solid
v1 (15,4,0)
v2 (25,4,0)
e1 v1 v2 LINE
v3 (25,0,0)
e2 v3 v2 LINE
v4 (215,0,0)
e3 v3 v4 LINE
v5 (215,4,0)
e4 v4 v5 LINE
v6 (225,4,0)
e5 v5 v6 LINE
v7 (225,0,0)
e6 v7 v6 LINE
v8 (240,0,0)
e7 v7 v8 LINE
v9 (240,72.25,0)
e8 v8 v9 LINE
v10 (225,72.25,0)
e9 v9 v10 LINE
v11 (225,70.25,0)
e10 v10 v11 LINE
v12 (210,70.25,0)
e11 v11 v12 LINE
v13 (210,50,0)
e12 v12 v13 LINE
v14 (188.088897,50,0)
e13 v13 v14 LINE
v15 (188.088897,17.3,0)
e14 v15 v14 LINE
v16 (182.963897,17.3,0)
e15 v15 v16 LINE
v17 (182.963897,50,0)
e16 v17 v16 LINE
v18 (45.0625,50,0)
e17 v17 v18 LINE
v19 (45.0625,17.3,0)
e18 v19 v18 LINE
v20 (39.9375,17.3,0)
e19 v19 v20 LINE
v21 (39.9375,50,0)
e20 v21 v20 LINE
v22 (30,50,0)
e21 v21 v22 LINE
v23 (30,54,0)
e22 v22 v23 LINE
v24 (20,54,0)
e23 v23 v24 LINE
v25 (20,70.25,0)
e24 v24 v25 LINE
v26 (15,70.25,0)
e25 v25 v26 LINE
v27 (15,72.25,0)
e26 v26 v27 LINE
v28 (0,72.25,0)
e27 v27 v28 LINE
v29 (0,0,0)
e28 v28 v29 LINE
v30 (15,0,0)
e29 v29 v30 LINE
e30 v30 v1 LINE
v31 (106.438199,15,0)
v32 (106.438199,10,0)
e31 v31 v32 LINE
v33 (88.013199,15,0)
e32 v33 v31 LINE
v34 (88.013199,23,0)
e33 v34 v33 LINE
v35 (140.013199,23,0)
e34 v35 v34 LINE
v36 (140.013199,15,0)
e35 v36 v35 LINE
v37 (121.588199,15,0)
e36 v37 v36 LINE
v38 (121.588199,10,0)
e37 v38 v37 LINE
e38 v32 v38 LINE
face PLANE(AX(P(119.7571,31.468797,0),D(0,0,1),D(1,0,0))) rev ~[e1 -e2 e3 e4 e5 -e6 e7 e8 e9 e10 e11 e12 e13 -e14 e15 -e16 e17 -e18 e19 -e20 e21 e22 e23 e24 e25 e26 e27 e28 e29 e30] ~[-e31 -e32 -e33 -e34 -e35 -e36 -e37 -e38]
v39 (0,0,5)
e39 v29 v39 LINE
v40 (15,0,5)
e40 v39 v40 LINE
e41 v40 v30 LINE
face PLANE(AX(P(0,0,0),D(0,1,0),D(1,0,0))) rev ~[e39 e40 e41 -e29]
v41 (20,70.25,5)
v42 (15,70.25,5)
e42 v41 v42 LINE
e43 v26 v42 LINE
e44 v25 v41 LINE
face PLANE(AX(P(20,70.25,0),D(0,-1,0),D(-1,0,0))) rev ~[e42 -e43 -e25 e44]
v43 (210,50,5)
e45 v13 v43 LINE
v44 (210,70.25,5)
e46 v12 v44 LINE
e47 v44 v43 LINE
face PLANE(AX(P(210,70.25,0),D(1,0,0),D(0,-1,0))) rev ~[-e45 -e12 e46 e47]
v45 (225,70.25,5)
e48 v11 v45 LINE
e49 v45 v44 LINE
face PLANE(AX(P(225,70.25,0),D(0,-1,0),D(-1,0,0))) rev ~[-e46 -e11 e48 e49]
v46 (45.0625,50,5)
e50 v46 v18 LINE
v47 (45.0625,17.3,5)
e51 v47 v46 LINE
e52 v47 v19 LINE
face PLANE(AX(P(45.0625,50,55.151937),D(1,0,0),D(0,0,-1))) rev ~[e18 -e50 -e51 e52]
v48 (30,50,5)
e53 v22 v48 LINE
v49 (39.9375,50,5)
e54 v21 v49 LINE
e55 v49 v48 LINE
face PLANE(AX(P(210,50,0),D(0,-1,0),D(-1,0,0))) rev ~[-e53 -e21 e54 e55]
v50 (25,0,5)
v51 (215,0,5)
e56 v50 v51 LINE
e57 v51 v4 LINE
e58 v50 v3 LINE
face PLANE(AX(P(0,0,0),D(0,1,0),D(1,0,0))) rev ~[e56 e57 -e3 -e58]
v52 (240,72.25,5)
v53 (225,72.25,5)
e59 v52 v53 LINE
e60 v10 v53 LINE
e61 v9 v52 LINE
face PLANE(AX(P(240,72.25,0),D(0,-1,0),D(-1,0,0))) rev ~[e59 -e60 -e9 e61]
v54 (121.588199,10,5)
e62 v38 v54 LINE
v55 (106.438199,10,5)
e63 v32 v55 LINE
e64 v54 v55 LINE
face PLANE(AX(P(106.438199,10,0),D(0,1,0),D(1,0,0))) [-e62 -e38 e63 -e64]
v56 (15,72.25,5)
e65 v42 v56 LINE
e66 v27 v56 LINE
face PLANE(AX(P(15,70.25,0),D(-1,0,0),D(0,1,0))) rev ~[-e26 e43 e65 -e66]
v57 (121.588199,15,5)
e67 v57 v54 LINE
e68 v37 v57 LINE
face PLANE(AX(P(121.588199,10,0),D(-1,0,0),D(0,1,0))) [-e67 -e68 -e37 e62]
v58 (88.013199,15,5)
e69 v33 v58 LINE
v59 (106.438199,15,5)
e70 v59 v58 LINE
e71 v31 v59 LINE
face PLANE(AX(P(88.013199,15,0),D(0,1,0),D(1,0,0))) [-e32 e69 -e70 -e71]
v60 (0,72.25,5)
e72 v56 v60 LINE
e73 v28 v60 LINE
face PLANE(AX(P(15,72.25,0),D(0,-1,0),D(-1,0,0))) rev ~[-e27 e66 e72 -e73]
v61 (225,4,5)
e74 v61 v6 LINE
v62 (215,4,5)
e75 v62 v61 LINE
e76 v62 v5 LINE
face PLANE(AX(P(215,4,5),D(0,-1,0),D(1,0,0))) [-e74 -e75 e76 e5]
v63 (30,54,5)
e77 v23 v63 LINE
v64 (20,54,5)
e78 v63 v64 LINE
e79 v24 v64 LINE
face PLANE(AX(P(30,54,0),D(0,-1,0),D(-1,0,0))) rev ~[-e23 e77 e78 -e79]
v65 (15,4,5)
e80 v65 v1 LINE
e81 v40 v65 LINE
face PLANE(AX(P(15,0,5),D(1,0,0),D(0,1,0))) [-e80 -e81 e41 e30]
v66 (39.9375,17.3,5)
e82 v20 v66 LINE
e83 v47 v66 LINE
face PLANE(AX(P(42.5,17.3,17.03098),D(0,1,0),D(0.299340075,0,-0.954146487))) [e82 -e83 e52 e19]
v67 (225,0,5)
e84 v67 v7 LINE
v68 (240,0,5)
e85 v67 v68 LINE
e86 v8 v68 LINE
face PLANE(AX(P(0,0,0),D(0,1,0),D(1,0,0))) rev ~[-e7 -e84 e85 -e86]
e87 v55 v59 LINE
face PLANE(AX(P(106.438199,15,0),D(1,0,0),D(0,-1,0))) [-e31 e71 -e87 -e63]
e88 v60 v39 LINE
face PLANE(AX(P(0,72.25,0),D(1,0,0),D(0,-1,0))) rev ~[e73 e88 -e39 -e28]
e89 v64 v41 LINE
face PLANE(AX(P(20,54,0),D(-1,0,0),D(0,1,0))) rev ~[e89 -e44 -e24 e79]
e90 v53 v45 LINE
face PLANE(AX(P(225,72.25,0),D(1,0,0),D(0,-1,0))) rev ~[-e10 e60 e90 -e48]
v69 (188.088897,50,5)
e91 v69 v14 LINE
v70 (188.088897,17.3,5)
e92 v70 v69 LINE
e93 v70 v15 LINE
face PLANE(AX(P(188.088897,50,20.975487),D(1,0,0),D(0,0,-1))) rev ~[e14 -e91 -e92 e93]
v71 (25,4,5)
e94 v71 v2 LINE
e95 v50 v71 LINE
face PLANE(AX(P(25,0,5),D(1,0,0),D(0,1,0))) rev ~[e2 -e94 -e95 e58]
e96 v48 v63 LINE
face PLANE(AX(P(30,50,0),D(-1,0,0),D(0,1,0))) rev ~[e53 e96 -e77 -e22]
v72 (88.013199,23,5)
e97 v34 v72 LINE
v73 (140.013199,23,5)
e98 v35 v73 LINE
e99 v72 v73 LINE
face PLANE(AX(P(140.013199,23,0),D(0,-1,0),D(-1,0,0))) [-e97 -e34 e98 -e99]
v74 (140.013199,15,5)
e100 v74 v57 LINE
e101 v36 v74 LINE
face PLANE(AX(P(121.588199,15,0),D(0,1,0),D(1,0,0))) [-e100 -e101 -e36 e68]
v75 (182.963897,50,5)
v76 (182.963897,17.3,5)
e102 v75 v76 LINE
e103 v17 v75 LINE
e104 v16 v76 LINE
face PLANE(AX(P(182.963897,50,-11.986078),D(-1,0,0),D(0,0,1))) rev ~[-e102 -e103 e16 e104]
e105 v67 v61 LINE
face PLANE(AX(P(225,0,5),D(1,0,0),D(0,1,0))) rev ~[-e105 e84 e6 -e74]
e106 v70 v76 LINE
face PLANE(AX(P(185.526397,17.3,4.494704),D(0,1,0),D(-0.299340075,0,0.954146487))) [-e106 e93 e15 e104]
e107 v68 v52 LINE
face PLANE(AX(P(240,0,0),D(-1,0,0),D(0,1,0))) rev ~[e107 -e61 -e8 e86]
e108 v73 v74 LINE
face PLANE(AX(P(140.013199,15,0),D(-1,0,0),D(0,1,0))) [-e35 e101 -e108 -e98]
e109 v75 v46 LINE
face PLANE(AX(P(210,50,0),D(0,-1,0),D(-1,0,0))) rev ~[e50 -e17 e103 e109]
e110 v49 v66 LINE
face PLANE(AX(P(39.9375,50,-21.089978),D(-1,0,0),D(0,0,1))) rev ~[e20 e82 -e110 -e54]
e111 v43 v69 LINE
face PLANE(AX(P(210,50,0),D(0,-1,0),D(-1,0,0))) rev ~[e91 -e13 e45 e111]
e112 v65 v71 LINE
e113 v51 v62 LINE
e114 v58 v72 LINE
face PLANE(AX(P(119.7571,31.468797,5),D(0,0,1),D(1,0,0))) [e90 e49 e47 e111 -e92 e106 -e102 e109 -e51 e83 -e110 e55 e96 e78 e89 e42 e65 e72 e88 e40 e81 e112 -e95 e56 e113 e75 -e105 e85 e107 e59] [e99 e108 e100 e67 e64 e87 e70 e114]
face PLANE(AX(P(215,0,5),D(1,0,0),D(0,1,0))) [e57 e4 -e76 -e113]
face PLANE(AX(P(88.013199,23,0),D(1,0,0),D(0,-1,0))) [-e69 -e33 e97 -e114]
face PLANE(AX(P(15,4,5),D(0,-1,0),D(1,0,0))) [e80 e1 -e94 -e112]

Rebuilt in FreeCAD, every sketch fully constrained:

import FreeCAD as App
import Part
import Sketcher
from FreeCAD import Vector

doc = App.newDocument("Part")
body = doc.addObject("PartDesign::Body", "Body")

# Sketch on XY plane
sketch1 = body.newObject("Sketcher::SketchObject", "Sketch")
sketch1.AttachmentSupport = (doc.getObject("XY_Plane"), [""])
sketch1.MapMode = "FlatFace"
sketch1.addGeometry(Part.LineSegment(Vector(0, 0, 0), Vector(240, 0, 0)), False)
sketch1.addGeometry(Part.LineSegment(Vector(240, 0, 0), Vector(240, 72.2, 0)), False)
sketch1.addGeometry(Part.LineSegment(Vector(240, 72.2, 0), Vector(225, 72.2, 0)), False)
sketch1.addGeometry(Part.LineSegment(Vector(225, 72.2, 0), Vector(225, 70.2, 0)), False)
sketch1.addGeometry(Part.LineSegment(Vector(225, 70.2, 0), Vector(210, 70.2, 0)), False)
sketch1.addGeometry(Part.LineSegment(Vector(210, 70.2, 0), Vector(210, 50, 0)), False)
sketch1.addGeometry(Part.LineSegment(Vector(210, 50, 0), Vector(30, 50, 0)), False)
sketch1.addGeometry(Part.LineSegment(Vector(30, 50, 0), Vector(30, 54, 0)), False)
sketch1.addGeometry(Part.LineSegment(Vector(30, 54, 0), Vector(20, 54, 0)), False)
sketch1.addGeometry(Part.LineSegment(Vector(20, 54, 0), Vector(20, 70.2, 0)), False)
sketch1.addGeometry(Part.LineSegment(Vector(20, 70.2, 0), Vector(15, 70.2, 0)), False)
sketch1.addGeometry(Part.LineSegment(Vector(15, 70.2, 0), Vector(15, 72.2, 0)), False)
sketch1.addGeometry(Part.LineSegment(Vector(15, 72.2, 0), Vector(0, 72.2, 0)), False)
sketch1.addGeometry(Part.LineSegment(Vector(0, 72.2, 0), Vector(0, 0, 0)), False)
sketch1.addConstraint(Sketcher.Constraint("Coincident", 0, 2, 1, 1))
sketch1.addConstraint(Sketcher.Constraint("Coincident", 1, 2, 2, 1))
sketch1.addConstraint(Sketcher.Constraint("Coincident", 2, 2, 3, 1))
sketch1.addConstraint(Sketcher.Constraint("Coincident", 3, 2, 4, 1))
sketch1.addConstraint(Sketcher.Constraint("Coincident", 4, 2, 5, 1))
sketch1.addConstraint(Sketcher.Constraint("Coincident", 5, 2, 6, 1))
sketch1.addConstraint(Sketcher.Constraint("Coincident", 6, 2, 7, 1))
sketch1.addConstraint(Sketcher.Constraint("Coincident", 7, 2, 8, 1))
sketch1.addConstraint(Sketcher.Constraint("Coincident", 8, 2, 9, 1))
sketch1.addConstraint(Sketcher.Constraint("Coincident", 9, 2, 10, 1))
sketch1.addConstraint(Sketcher.Constraint("Coincident", 10, 2, 11, 1))
sketch1.addConstraint(Sketcher.Constraint("Coincident", 11, 2, 12, 1))
sketch1.addConstraint(Sketcher.Constraint("Coincident", 12, 2, 13, 1))
sketch1.addConstraint(Sketcher.Constraint("Coincident", 13, 2, 0, 1))
sketch1.addConstraint(Sketcher.Constraint("Horizontal", 0))
sketch1.addConstraint(Sketcher.Constraint("Vertical", 1))
sketch1.addConstraint(Sketcher.Constraint("Horizontal", 2))
sketch1.addConstraint(Sketcher.Constraint("Vertical", 3))
sketch1.addConstraint(Sketcher.Constraint("Horizontal", 4))
sketch1.addConstraint(Sketcher.Constraint("Vertical", 5))
sketch1.addConstraint(Sketcher.Constraint("Horizontal", 6))
sketch1.addConstraint(Sketcher.Constraint("Vertical", 7))
sketch1.addConstraint(Sketcher.Constraint("Horizontal", 8))
sketch1.addConstraint(Sketcher.Constraint("Vertical", 9))
sketch1.addConstraint(Sketcher.Constraint("Horizontal", 10))
sketch1.addConstraint(Sketcher.Constraint("Vertical", 11))
sketch1.addConstraint(Sketcher.Constraint("Horizontal", 12))
sketch1.addConstraint(Sketcher.Constraint("Vertical", 13))
sketch1.addConstraint(Sketcher.Constraint("Coincident", 13, 2, -1, 1))
sketch1.addConstraint(Sketcher.Constraint("Horizontal", 4, 2, 9, 2))
sketch1.addConstraint(Sketcher.Constraint("Horizontal", 2, 2, 11, 2))
sketch1.addConstraint(Sketcher.Constraint("Equal", 2, 4))
sketch1.addConstraint(Sketcher.Constraint("Equal", 4, 12))
sketch1.addConstraint(Sketcher.Constraint("DistanceX", 0, 1, 0, 2, 240.0))
sketch1.addConstraint(Sketcher.Constraint("DistanceX", 2, 2, 2, 1, 15.0))
sketch1.addConstraint(Sketcher.Constraint("DistanceX", 6, 2, 6, 1, 180.0))
sketch1.addConstraint(Sketcher.Constraint("DistanceX", 8, 2, 8, 1, 10.0))
sketch1.addConstraint(Sketcher.Constraint("DistanceY", 3, 2, 3, 1, 2.0))
sketch1.addConstraint(Sketcher.Constraint("DistanceY", 7, 1, 7, 2, 4.0))
sketch1.addConstraint(Sketcher.Constraint("DistanceY", -1, 1, 5, 2, 50.0))
sketch1.addConstraint(Sketcher.Constraint("DistanceY", 1, 1, 1, 2, 72.25))
pad1 = body.newObject("PartDesign::Pad", "Pad")
pad1.Profile = sketch1
pad1.Length = 5

# Sketch on XZ plane
sketch2 = body.newObject("Sketcher::SketchObject", "Sketch001")
sketch2.AttachmentSupport = (doc.getObject("XZ_Plane"), [""])
sketch2.MapMode = "FlatFace"
sketch2.AttachmentOffset = App.Placement(Vector(0, 0, -50), App.Rotation())
sketch2.addGeometry(Part.LineSegment(Vector(188, -12, 0), Vector(188, 21, 0)), False)
sketch2.addGeometry(Part.LineSegment(Vector(188, 21, 0), Vector(183, 21, 0)), False)
sketch2.addGeometry(Part.LineSegment(Vector(183, 21, 0), Vector(183, -12, 0)), False)
sketch2.addGeometry(Part.LineSegment(Vector(183, -12, 0), Vector(188, -12, 0)), False)
sketch2.addConstraint(Sketcher.Constraint("Coincident", 0, 2, 1, 1))
sketch2.addConstraint(Sketcher.Constraint("Coincident", 1, 2, 2, 1))
sketch2.addConstraint(Sketcher.Constraint("Coincident", 2, 2, 3, 1))
sketch2.addConstraint(Sketcher.Constraint("Coincident", 3, 2, 0, 1))
sketch2.addConstraint(Sketcher.Constraint("Vertical", 0))
sketch2.addConstraint(Sketcher.Constraint("Horizontal", 1))
sketch2.addConstraint(Sketcher.Constraint("Vertical", 2))
sketch2.addConstraint(Sketcher.Constraint("Horizontal", 3))
sketch2.addConstraint(Sketcher.Constraint("DistanceX", 1, 2, 1, 1, 5.125))
sketch2.addConstraint(Sketcher.Constraint("DistanceY", 0, 1, 0, 2, 32.961565))
sketch2.addConstraint(Sketcher.Constraint("DistanceX", -1, 1, 0, 2, 188.088897))
sketch2.addConstraint(Sketcher.Constraint("DistanceY", -1, 1, 0, 2, 20.975487))
pocket1 = body.newObject("PartDesign::Pocket", "Pocket")
pocket1.Profile = sketch2
pocket1.Length = 32.7
pocket1.Reversed = True

# Sketch on XZ plane
sketch3 = body.newObject("Sketcher::SketchObject", "Sketch002")
sketch3.AttachmentSupport = (doc.getObject("XZ_Plane"), [""])
sketch3.MapMode = "FlatFace"
sketch3.AttachmentOffset = App.Placement(Vector(0, 0, -50), App.Rotation())
sketch3.addGeometry(Part.LineSegment(Vector(40, 55, 0), Vector(40, -21, 0)), False)
sketch3.addGeometry(Part.LineSegment(Vector(40, -21, 0), Vector(45, -21, 0)), False)
sketch3.addGeometry(Part.LineSegment(Vector(45, -21, 0), Vector(45, 55, 0)), False)
sketch3.addGeometry(Part.LineSegment(Vector(45, 55, 0), Vector(40, 55, 0)), False)
sketch3.addConstraint(Sketcher.Constraint("Coincident", 0, 2, 1, 1))
sketch3.addConstraint(Sketcher.Constraint("Coincident", 1, 2, 2, 1))
sketch3.addConstraint(Sketcher.Constraint("Coincident", 2, 2, 3, 1))
sketch3.addConstraint(Sketcher.Constraint("Coincident", 3, 2, 0, 1))
sketch3.addConstraint(Sketcher.Constraint("Vertical", 0))
sketch3.addConstraint(Sketcher.Constraint("Horizontal", 1))
sketch3.addConstraint(Sketcher.Constraint("Vertical", 2))
sketch3.addConstraint(Sketcher.Constraint("Horizontal", 3))
sketch3.addConstraint(Sketcher.Constraint("DistanceX", 1, 1, 1, 2, 5.125))
sketch3.addConstraint(Sketcher.Constraint("DistanceX", -1, 1, 0, 2, 39.9375))
sketch3.addConstraint(Sketcher.Constraint("DistanceY", 0, 2, 0, 1, 76.241915))
sketch3.addConstraint(Sketcher.Constraint("DistanceY", 0, 2, -1, 1, 21.089978))
pocket2 = body.newObject("PartDesign::Pocket", "Pocket001")
pocket2.Profile = sketch3
pocket2.Length = 32.7
pocket2.Reversed = True

# Sketch on XY plane
sketch4 = body.newObject("Sketcher::SketchObject", "Sketch003")
sketch4.AttachmentSupport = (doc.getObject("XY_Plane"), [""])
sketch4.MapMode = "FlatFace"
sketch4.addGeometry(Part.LineSegment(Vector(106, 15, 0), Vector(88, 15, 0)), False)
sketch4.addGeometry(Part.LineSegment(Vector(88, 15, 0), Vector(88, 23, 0)), False)
sketch4.addGeometry(Part.LineSegment(Vector(88, 23, 0), Vector(140, 23, 0)), False)
sketch4.addGeometry(Part.LineSegment(Vector(140, 23, 0), Vector(140, 15, 0)), False)
sketch4.addGeometry(Part.LineSegment(Vector(140, 15, 0), Vector(122, 15, 0)), False)
sketch4.addGeometry(Part.LineSegment(Vector(122, 15, 0), Vector(122, 10, 0)), False)
sketch4.addGeometry(Part.LineSegment(Vector(122, 10, 0), Vector(106, 10, 0)), False)
sketch4.addGeometry(Part.LineSegment(Vector(106, 10, 0), Vector(106, 15, 0)), False)
sketch4.addConstraint(Sketcher.Constraint("Coincident", 0, 2, 1, 1))
sketch4.addConstraint(Sketcher.Constraint("Coincident", 1, 2, 2, 1))
sketch4.addConstraint(Sketcher.Constraint("Coincident", 2, 2, 3, 1))
sketch4.addConstraint(Sketcher.Constraint("Coincident", 3, 2, 4, 1))
sketch4.addConstraint(Sketcher.Constraint("Coincident", 4, 2, 5, 1))
sketch4.addConstraint(Sketcher.Constraint("Coincident", 5, 2, 6, 1))
sketch4.addConstraint(Sketcher.Constraint("Coincident", 6, 2, 7, 1))
sketch4.addConstraint(Sketcher.Constraint("Coincident", 7, 2, 0, 1))
sketch4.addConstraint(Sketcher.Constraint("Horizontal", 0))
sketch4.addConstraint(Sketcher.Constraint("Vertical", 1))
sketch4.addConstraint(Sketcher.Constraint("Horizontal", 2))
sketch4.addConstraint(Sketcher.Constraint("Vertical", 3))
sketch4.addConstraint(Sketcher.Constraint("Horizontal", 4))
sketch4.addConstraint(Sketcher.Constraint("Vertical", 5))
sketch4.addConstraint(Sketcher.Constraint("Horizontal", 6))
sketch4.addConstraint(Sketcher.Constraint("Vertical", 7))
sketch4.addConstraint(Sketcher.Constraint("Horizontal", 0, 2, 3, 2))
sketch4.addConstraint(Sketcher.Constraint("Equal", 0, 4))
sketch4.addConstraint(Sketcher.Constraint("DistanceX", 2, 1, 2, 2, 52.0))
sketch4.addConstraint(Sketcher.Constraint("DistanceY", 1, 1, 1, 2, 8.0))
sketch4.addConstraint(Sketcher.Constraint("DistanceY", 5, 2, 5, 1, 5.0))
sketch4.addConstraint(Sketcher.Constraint("DistanceY", -1, 1, 0, 2, 15.0))
sketch4.addConstraint(Sketcher.Constraint("DistanceX", 6, 2, 6, 1, 15.15))
sketch4.addConstraint(Sketcher.Constraint("DistanceX", -1, 1, 0, 2, 88.013199))
pocket3 = body.newObject("PartDesign::Pocket", "Pocket002")
pocket3.Profile = sketch4
pocket3.Length = 50
pocket3.Reversed = True

# Sketch on XY plane
sketch5 = body.newObject("Sketcher::SketchObject", "Sketch004")
sketch5.AttachmentSupport = (doc.getObject("XY_Plane"), [""])
sketch5.MapMode = "FlatFace"
sketch5.AttachmentOffset = App.Placement(Vector(0, 0, 5), App.Rotation())
sketch5.addGeometry(Part.LineSegment(Vector(15, 4, 0), Vector(15, 0, 0)), False)
sketch5.addGeometry(Part.LineSegment(Vector(15, 0, 0), Vector(25, 0, 0)), False)
sketch5.addGeometry(Part.LineSegment(Vector(25, 0, 0), Vector(25, 4, 0)), False)
sketch5.addGeometry(Part.LineSegment(Vector(25, 4, 0), Vector(15, 4, 0)), False)
sketch5.addGeometry(Part.LineSegment(Vector(215, 4, 0), Vector(215, 0, 0)), False)
sketch5.addGeometry(Part.LineSegment(Vector(215, 0, 0), Vector(225, 0, 0)), False)
sketch5.addGeometry(Part.LineSegment(Vector(225, 0, 0), Vector(225, 4, 0)), False)
sketch5.addGeometry(Part.LineSegment(Vector(225, 4, 0), Vector(215, 4, 0)), False)
sketch5.addConstraint(Sketcher.Constraint("Coincident", 0, 2, 1, 1))
sketch5.addConstraint(Sketcher.Constraint("Coincident", 1, 2, 2, 1))
sketch5.addConstraint(Sketcher.Constraint("Coincident", 2, 2, 3, 1))
sketch5.addConstraint(Sketcher.Constraint("Coincident", 3, 2, 0, 1))
sketch5.addConstraint(Sketcher.Constraint("Coincident", 4, 2, 5, 1))
sketch5.addConstraint(Sketcher.Constraint("Coincident", 5, 2, 6, 1))
sketch5.addConstraint(Sketcher.Constraint("Coincident", 6, 2, 7, 1))
sketch5.addConstraint(Sketcher.Constraint("Coincident", 7, 2, 4, 1))
sketch5.addConstraint(Sketcher.Constraint("Vertical", 0))
sketch5.addConstraint(Sketcher.Constraint("Horizontal", 1))
sketch5.addConstraint(Sketcher.Constraint("Vertical", 2))
sketch5.addConstraint(Sketcher.Constraint("Horizontal", 3))
sketch5.addConstraint(Sketcher.Constraint("Vertical", 4))
sketch5.addConstraint(Sketcher.Constraint("Horizontal", 5))
sketch5.addConstraint(Sketcher.Constraint("Vertical", 6))
sketch5.addConstraint(Sketcher.Constraint("Horizontal", 7))
sketch5.addConstraint(Sketcher.Constraint("PointOnObject", 0, 2, -1))
sketch5.addConstraint(Sketcher.Constraint("PointOnObject", 4, 2, -1))
sketch5.addConstraint(Sketcher.Constraint("Horizontal", 3, 2, 6, 2))
sketch5.addConstraint(Sketcher.Constraint("Equal", 3, 5))
sketch5.addConstraint(Sketcher.Constraint("DistanceX", 1, 1, 1, 2, 10.0))
sketch5.addConstraint(Sketcher.Constraint("DistanceY", 0, 2, 0, 1, 4.0))
sketch5.addConstraint(Sketcher.Constraint("DistanceX", -1, 1, 0, 2, 15.0))
sketch5.addConstraint(Sketcher.Constraint("DistanceX", -1, 1, 4, 2, 215.0))
pocket4 = body.newObject("PartDesign::Pocket", "Pocket003")
pocket4.Profile = sketch5
pocket4.Type = "ThroughAll"

doc.recompute()
